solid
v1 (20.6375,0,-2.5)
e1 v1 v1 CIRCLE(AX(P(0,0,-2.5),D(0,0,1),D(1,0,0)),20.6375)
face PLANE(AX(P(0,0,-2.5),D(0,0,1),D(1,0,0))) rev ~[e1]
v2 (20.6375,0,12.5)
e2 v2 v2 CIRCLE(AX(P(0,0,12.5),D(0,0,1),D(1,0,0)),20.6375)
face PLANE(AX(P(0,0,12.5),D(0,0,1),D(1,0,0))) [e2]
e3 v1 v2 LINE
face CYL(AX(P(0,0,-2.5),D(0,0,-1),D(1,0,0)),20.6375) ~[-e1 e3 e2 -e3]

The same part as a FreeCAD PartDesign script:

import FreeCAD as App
import Part
import Sketcher
from FreeCAD import Vector

doc = App.newDocument("Part")
body = doc.addObject("PartDesign::Body", "Body")

# Sketch on XY plane
sketch1 = body.newObject("Sketcher::SketchObject", "Sketch")
sketch1.AttachmentSupport = (doc.getObject("XY_Plane"), [""])
sketch1.MapMode = "FlatFace"
sketch1.AttachmentOffset = App.Placement(Vector(0, 0, -2.5), App.Rotation())
sketch1.addGeometry(Part.Circle(Vector(0, 0, 0), Vector(0, 0, 1), 20.6375), False)
sketch1.addConstraint(Sketcher.Constraint("Coincident", 0, 3, -1, 1))
sketch1.addConstraint(Sketcher.Constraint("Diameter", 0, 41.275))
pad1 = body.newObject("PartDesign::Pad", "Pad")
pad1.Profile = sketch1
pad1.Length = 15

doc.recompute()
